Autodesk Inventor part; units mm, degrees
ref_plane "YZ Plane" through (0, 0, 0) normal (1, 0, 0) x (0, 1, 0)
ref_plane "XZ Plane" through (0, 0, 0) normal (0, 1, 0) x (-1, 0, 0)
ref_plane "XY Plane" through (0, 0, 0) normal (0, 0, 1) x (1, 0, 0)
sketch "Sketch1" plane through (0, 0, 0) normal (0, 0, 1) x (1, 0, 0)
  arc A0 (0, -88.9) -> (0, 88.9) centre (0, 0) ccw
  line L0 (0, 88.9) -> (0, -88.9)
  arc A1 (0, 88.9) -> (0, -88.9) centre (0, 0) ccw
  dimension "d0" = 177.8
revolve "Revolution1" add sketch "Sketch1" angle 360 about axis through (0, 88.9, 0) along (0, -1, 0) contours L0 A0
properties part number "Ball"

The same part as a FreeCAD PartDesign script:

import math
import FreeCAD as App
import Part
import Sketcher
from FreeCAD import Vector
Q = App.Units.Quantity

doc = App.newDocument("Part")
body = doc.addObject("PartDesign::Body", "Body")

# Sketch on XY plane
sketch1 = body.newObject("Sketcher::SketchObject", "Sketch")
sketch1.AttachmentSupport = (doc.getObject("XY_Plane"), [""])
sketch1.MapMode = "FlatFace"
sketch1.addGeometry(Part.LineSegment(Vector(0, 88.9, 0), Vector(0, -88.9, 0)), False)
sketch1.addGeometry(Part.ArcOfCircle(Part.Circle(Vector(0, 0, 0), Vector(0, 0, 1), 88.9), math.radians(-90), math.radians(90)), False)
sketch1.addConstraint(Sketcher.Constraint("Coincident", 0, 1, 1, 2))
sketch1.addConstraint(Sketcher.Constraint("Coincident", 1, 1, 0, 2))
sketch1.addConstraint(Sketcher.Constraint("Vertical", 0))
sketch1.addConstraint(Sketcher.Constraint("Coincident", 1, 3, -1, 1))
sketch1.addConstraint(Sketcher.Constraint("PointOnObject", 0, 1, -2))
sketch1.addConstraint(Sketcher.Constraint("Radius", 1, Q("3.5 in")))
revolution = body.newObject("PartDesign::Revolution", "Revolution")
revolution.Profile = sketch1
revolution.ReferenceAxis = (sketch1, ["V_Axis"])
revolution.Angle = 360

doc.recompute()
